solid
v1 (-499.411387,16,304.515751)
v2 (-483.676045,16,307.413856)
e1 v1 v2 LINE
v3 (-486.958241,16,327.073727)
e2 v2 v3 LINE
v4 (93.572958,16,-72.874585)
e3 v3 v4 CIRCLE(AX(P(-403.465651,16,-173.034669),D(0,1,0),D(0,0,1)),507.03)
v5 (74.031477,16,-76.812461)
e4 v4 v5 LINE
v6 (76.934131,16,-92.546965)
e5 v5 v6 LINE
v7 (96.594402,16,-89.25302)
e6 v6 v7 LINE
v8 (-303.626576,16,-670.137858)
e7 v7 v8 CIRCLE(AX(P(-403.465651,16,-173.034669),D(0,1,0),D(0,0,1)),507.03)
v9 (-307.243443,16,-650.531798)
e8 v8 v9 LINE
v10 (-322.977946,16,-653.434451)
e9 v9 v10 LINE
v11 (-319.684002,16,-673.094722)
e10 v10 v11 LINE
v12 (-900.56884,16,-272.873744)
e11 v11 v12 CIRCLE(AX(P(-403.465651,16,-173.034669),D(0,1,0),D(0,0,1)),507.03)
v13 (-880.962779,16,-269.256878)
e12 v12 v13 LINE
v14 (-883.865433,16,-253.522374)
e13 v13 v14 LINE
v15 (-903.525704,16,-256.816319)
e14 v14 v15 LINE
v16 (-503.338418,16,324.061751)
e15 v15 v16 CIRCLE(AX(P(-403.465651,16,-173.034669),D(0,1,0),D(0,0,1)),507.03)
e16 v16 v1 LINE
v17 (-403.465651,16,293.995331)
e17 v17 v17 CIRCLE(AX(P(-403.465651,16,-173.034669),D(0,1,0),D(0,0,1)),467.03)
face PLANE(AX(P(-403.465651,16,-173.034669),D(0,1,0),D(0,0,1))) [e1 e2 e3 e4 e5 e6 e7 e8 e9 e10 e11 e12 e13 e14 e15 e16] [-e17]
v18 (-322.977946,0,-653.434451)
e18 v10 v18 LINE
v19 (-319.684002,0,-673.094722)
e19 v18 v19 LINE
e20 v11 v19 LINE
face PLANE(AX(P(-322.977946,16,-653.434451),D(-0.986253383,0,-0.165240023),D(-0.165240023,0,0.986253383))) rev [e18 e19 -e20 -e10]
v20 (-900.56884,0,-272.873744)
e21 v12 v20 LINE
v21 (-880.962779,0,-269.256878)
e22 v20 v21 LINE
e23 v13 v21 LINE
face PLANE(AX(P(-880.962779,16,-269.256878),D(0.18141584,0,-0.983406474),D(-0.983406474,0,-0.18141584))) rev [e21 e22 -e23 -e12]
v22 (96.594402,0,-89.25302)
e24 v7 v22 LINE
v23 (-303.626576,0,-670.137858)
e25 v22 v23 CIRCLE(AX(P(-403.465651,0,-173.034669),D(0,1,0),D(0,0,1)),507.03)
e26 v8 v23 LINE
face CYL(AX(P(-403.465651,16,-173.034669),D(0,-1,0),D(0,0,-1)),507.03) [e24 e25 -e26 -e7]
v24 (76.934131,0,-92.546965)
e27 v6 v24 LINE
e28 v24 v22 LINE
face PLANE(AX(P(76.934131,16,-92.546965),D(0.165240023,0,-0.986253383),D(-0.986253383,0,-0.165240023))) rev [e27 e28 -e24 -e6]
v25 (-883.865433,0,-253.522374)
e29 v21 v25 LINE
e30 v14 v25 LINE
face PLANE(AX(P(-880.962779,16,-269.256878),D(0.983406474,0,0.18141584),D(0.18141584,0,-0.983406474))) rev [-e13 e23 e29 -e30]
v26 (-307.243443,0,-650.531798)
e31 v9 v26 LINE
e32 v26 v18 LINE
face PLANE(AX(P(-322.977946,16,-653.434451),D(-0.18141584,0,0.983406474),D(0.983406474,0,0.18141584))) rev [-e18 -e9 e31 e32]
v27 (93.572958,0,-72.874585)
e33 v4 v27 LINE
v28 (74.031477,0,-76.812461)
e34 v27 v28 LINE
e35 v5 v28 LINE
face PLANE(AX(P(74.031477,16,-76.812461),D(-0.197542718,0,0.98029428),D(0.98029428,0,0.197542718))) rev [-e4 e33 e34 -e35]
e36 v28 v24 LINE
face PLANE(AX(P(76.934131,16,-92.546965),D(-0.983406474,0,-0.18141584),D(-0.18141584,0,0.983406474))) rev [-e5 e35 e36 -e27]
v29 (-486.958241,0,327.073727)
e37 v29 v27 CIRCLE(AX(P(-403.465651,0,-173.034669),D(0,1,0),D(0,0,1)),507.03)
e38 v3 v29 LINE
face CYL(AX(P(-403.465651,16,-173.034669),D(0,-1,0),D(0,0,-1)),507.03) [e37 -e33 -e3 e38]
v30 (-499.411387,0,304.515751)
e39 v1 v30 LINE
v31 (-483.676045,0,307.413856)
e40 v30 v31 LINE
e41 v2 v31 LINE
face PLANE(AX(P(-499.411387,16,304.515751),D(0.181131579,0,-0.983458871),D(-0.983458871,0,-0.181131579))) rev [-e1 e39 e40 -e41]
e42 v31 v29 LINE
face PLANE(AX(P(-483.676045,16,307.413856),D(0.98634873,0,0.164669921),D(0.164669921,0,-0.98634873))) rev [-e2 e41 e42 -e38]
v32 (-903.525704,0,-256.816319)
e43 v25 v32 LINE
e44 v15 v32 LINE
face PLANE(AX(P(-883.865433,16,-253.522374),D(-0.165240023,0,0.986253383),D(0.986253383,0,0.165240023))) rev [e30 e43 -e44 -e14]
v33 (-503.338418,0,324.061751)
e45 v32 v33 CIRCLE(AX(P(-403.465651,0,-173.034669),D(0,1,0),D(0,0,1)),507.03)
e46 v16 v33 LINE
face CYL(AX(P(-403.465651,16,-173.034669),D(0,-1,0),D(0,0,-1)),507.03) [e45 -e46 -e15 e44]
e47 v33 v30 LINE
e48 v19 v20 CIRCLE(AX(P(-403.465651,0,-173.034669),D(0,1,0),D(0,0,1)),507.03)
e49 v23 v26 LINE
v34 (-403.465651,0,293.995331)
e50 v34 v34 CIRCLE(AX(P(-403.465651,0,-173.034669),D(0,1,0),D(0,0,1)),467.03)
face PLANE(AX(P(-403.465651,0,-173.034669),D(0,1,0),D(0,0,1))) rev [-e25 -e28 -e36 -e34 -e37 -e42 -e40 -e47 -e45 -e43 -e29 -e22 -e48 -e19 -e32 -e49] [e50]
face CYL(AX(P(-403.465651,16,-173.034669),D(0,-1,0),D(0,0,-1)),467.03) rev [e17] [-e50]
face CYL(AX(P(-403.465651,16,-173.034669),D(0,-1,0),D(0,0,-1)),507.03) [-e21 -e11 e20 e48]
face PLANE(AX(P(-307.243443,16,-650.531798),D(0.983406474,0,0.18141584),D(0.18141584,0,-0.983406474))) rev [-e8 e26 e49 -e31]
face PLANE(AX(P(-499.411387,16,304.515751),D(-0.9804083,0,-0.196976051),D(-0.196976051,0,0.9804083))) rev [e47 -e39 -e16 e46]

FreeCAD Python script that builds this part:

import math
import FreeCAD as App
import Part
import Sketcher
Q = App.Units.Quantity

doc = App.newDocument("Part")
body = doc.addObject("PartDesign::Body", "Body")

# Sketch on XZ plane
sketch1 = body.newObject("Sketcher::SketchObject", "Sketch")
sketch1.AttachmentSupport = (doc.getObject("XZ_Plane"), [""])
sketch1.MapMode = "FlatFace"
sketch1.addGeometry([
    Part.LineSegment(App.Vector(-307.243443, -650.531798, 0), App.Vector(-322.977946, -653.434451, 0)),  # 0
    Part.LineSegment(App.Vector(-322.977946, -653.434451, 0), App.Vector(-319.684002, -673.094722, 0)),  # 1
    Part.ArcOfCircle(Part.Circle(App.Vector(-403.465651, -173.034669, 0), App.Vector(0, 0, 1), 507.03), math.radians(-168.643701), math.radians(-80.488822)),  # 2
    Part.LineSegment(App.Vector(-900.56884, -272.873744, 0), App.Vector(-880.962779, -269.256878, 0)),  # 3
    Part.LineSegment(App.Vector(-880.962779, -269.256878, 0), App.Vector(-883.865433, -253.522374, 0)),  # 4
    Part.LineSegment(App.Vector(-883.865433, -253.522374, 0), App.Vector(-903.525704, -256.816319, 0)),  # 5
    Part.ArcOfCircle(Part.Circle(App.Vector(-403.465651, -173.034669, 0), App.Vector(0, 0, 1), 507.03), math.radians(101.360182), math.radians(189.511178)),  # 6
    Part.LineSegment(App.Vector(-503.338418, 324.061751, 0), App.Vector(-499.411387, 304.515751, 0)),  # 7
    Part.LineSegment(App.Vector(-499.411387, 304.515751, 0), App.Vector(-483.676045, 307.413856, 0)),  # 8
    Part.LineSegment(App.Vector(-483.676045, 307.413856, 0), App.Vector(-486.958241, 327.073727, 0)),  # 9
    Part.ArcOfCircle(Part.Circle(App.Vector(-403.465651, -173.034669, 0), App.Vector(0, 0, 1), 507.03), math.radians(11.393301), math.radians(99.47806)),  # 10
    Part.LineSegment(App.Vector(93.572958, -72.874585, 0), App.Vector(74.031477, -76.812461, 0)),  # 11
    Part.LineSegment(App.Vector(74.031477, -76.812461, 0), App.Vector(76.934131, -92.546965, 0)),  # 12
    Part.LineSegment(App.Vector(76.934131, -92.546965, 0), App.Vector(96.594402, -89.25302, 0)),  # 13
    Part.ArcOfCircle(Part.Circle(App.Vector(-403.465651, -173.034669, 0), App.Vector(0, 0, 1), 507.03), math.radians(-78.643701), math.radians(9.511178)),  # 14
    Part.LineSegment(App.Vector(-303.626576, -670.137858, 0), App.Vector(-307.243443, -650.531798, 0)),  # 15
    Part.Circle(App.Vector(-403.465651, -173.034669, 0), App.Vector(0, 0, 1), 467.03),  # 16
], False)
sketch1.addConstraint([
    Sketcher.Constraint("Coincident", 0, 2, 1, 1),
    Sketcher.Constraint("Coincident", 1, 2, 2, 2),
    Sketcher.Constraint("Coincident", 2, 1, 3, 1),
    Sketcher.Constraint("Coincident", 3, 2, 4, 1),
    Sketcher.Constraint("Coincident", 4, 2, 5, 1),
    Sketcher.Constraint("Coincident", 5, 2, 6, 2),
    Sketcher.Constraint("Coincident", 6, 1, 7, 1),
    Sketcher.Constraint("Coincident", 7, 2, 8, 1),
    Sketcher.Constraint("Coincident", 8, 2, 9, 1),
    Sketcher.Constraint("Coincident", 9, 2, 10, 2),
    Sketcher.Constraint("Coincident", 10, 1, 11, 1),
    Sketcher.Constraint("Coincident", 11, 2, 12, 1),
    Sketcher.Constraint("Coincident", 12, 2, 13, 1),
    Sketcher.Constraint("Coincident", 13, 2, 14, 2),
    Sketcher.Constraint("Coincident", 14, 1, 15, 1),
    Sketcher.Constraint("Coincident", 15, 2, 0, 1),
    Sketcher.Constraint("Coincident", 6, 3, 2, 3),
    Sketcher.Constraint("Coincident", 10, 3, 2, 3),
    Sketcher.Constraint("Coincident", 14, 3, 2, 3),
    Sketcher.Constraint("Coincident", 16, 3, 2, 3),
    Sketcher.Constraint("Equal", 2, 6),
    Sketcher.Constraint("Equal", 6, 10),
    Sketcher.Constraint("Equal", 10, 14),
    Sketcher.Constraint("Parallel", 0, 3),
    Sketcher.Constraint("Perpendicular", 3, 4),
    Sketcher.Constraint("Perpendicular", 1, 5),
    Sketcher.Constraint("Parallel", 4, 12),
    Sketcher.Constraint("Parallel", 5, 13),
    Sketcher.Constraint("Parallel", 12, 15),
    Sketcher.Constraint("Equal", 0, 4),
    Sketcher.Constraint("Equal", 1, 5),
    Sketcher.Constraint("Equal", 4, 8),
    Sketcher.Constraint("Equal", 5, 11),
    Sketcher.Constraint("Equal", 8, 12),
    Sketcher.Constraint("Equal", 11, 13),
    Sketcher.Constraint("Equal", 3, 15),
    Sketcher.Constraint("Diameter", 16, 934.06),
    Sketcher.Constraint("Radius", 2, 507.03),
    Sketcher.Constraint("Distance", 0, 16.0),
    Sketcher.Constraint("DistanceX", 1, 2, -1, 1, 319.684002),
    Sketcher.Constraint("DistanceY", 7, 2, 6, 1, 19.546),
    Sketcher.Constraint("Distance", 1, 19.9343),
    Sketcher.Constraint("DistanceX", -1, 1, 13, 2, 96.594402),
    Sketcher.Constraint("Distance", 7, 19.936592),
    Sketcher.Constraint("DistanceX", 2, 3, -1, 1, 403.465651),
    Sketcher.Constraint("DistanceY", 2, 3, -1, 1, 173.034669),
    Sketcher.Constraint("DistanceY", 0, 2, -1, 1, 653.434451),
    Sketcher.Constraint("DistanceY", -1, 1, 7, 2, 304.515751),
    Sketcher.Constraint("DistanceX", 9, 2, -1, 1, 486.958241),
    Sketcher.Constraint("DistanceX", 7, 2, 8, 2, 15.735342),
    Sketcher.Constraint("Angle", 11, Q("-168.606699 deg")),
])
pad1 = body.newObject("PartDesign::Pad", "Pad")
pad1.Profile = sketch1
pad1.Length = 16
pad1.Reversed = True

doc.recompute()
